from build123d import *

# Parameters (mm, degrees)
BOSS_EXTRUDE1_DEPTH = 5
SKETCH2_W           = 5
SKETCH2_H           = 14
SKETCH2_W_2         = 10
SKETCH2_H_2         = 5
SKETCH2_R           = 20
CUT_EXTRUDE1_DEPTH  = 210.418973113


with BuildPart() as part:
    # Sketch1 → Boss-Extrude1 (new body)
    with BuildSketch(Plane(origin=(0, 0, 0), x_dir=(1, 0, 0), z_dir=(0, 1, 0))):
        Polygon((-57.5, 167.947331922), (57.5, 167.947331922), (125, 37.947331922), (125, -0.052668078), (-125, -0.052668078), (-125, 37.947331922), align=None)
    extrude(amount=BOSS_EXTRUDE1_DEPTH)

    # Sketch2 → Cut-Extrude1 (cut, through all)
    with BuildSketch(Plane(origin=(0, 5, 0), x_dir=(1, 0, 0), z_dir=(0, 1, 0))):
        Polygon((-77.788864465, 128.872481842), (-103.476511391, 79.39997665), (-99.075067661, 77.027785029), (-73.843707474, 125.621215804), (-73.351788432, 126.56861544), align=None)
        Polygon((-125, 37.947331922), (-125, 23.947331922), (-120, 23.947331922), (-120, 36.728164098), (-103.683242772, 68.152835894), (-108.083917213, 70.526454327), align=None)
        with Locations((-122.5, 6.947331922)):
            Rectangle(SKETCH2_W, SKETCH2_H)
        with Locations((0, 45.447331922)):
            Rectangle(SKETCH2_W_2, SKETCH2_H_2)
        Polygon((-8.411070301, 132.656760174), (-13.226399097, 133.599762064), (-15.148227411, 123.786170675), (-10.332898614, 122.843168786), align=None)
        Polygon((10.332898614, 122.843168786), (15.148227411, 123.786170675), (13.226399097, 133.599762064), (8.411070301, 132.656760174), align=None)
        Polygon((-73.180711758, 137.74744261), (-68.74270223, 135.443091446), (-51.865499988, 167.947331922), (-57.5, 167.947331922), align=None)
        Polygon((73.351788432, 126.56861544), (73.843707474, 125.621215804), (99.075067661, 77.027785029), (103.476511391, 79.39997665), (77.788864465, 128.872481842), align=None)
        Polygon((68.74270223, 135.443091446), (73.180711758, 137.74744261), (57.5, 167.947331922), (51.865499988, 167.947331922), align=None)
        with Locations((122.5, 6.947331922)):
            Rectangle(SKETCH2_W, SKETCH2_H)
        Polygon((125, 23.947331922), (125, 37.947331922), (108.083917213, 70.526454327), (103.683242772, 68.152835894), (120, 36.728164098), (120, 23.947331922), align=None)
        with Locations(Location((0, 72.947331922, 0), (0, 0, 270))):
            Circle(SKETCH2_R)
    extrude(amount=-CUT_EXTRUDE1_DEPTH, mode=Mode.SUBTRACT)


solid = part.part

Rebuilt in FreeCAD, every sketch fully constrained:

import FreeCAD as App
import Part
import Sketcher

V = App.Vector
Q = App.Units.Quantity

doc = App.newDocument("Part")
body = doc.addObject("PartDesign::Body", "Body")

# Sketch on XZ plane
sketch1 = body.newObject("Sketcher::SketchObject", "Sketch")
sketch1.AttachmentSupport = (doc.getObject("XZ_Plane"), [""])
sketch1.MapMode = "FlatFace"
sketch1.addGeometry([
    Part.LineSegment(V(57.5, -167.947332, 0), V(-57.5, -167.947332, 0)),  # 0
    Part.LineSegment(V(-57.5, -167.947332, 0), V(-125, -37.947332, 0)),  # 1
    Part.LineSegment(V(-125, -37.947332, 0), V(-125, 0.052668, 0)),  # 2
    Part.LineSegment(V(-125, 0.052668, 0), V(125, 0.052668, 0)),  # 3
    Part.LineSegment(V(125, 0.052668, 0), V(125, -37.947332, 0)),  # 4
    Part.LineSegment(V(125, -37.947332, 0), V(57.5, -167.947332, 0)),  # 5
], False)
sketch1.addConstraint([
    Sketcher.Constraint("Coincident", 0, 2, 1, 1),
    Sketcher.Constraint("Coincident", 1, 2, 2, 1),
    Sketcher.Constraint("Coincident", 2, 2, 3, 1),
    Sketcher.Constraint("Coincident", 3, 2, 4, 1),
    Sketcher.Constraint("Coincident", 4, 2, 5, 1),
    Sketcher.Constraint("Coincident", 5, 2, 0, 1),
    Sketcher.Constraint("Horizontal", 0),
    Sketcher.Constraint("Vertical", 2),
    Sketcher.Constraint("Horizontal", 3),
    Sketcher.Constraint("Vertical", 4),
    Sketcher.Constraint("Symmetric", 1, 2, 4, 2, -2),
    Sketcher.Constraint("Equal", 1, 5),
    Sketcher.Constraint("DistanceX", 0, 2, 0, 1, Q("115 mm")),
    Sketcher.Constraint("DistanceX", 3, 1, 3, 2, Q("250 mm")),
    Sketcher.Constraint("DistanceY", 2, 1, 2, 2, Q("38 mm")),
    Sketcher.Constraint("DistanceY", 0, 2, 1, 2, Q("130 mm")),
    Sketcher.Constraint("DistanceY", 0, 2, -1, 1, Q("167.947332 mm")),
])
pad1 = body.newObject("PartDesign::Pad", "Pad")
pad1.Profile = sketch1
pad1.Length = 5
pad1.Reversed = True

# Sketch on XZ plane
sketch2 = body.newObject("Sketcher::SketchObject", "Sketch001")
sketch2.AttachmentSupport = (doc.getObject("XZ_Plane"), [""])
sketch2.MapMode = "FlatFace"
sketch2.AttachmentOffset = App.Placement(V(0, 0, -5), App.Rotation())
sketch2.addGeometry([
    Part.LineSegment(V(-77.788864, -128.872482, 0), V(-103.476511, -79.399977, 0)),  # 0
    Part.LineSegment(V(-103.476511, -79.399977, 0), V(-99.075068, -77.027785, 0)),  # 1
    Part.LineSegment(V(-99.075068, -77.027785, 0), V(-73.843707, -125.621216, 0)),  # 2
    Part.LineSegment(V(-73.843707, -125.621216, 0), V(-73.351788, -126.568615, 0)),  # 3
    Part.LineSegment(V(-73.351788, -126.568615, 0), V(-77.788864, -128.872482, 0)),  # 4
    Part.LineSegment(V(-125, -37.947332, 0), V(-125, -23.947332, 0)),  # 5
    Part.LineSegment(V(-125, -23.947332, 0), V(-120, -23.947332, 0)),  # 6
    Part.LineSegment(V(-120, -23.947332, 0), V(-120, -36.728164, 0)),  # 7
    Part.LineSegment(V(-120, -36.728164, 0), V(-103.683243, -68.152836, 0)),  # 8
    Part.LineSegment(V(-103.683243, -68.152836, 0), V(-108.083917, -70.526454, 0)),  # 9
    Part.LineSegment(V(-108.083917, -70.526454, 0), V(-125, -37.947332, 0)),  # 10
    Part.LineSegment(V(-125, -13.947332, 0), V(-125, 0.052668, 0)),  # 11
    Part.LineSegment(V(-125, 0.052668, 0), V(-120, 0.052668, 0)),  # 12
    Part.LineSegment(V(-120, 0.052668, 0), V(-120, -13.947332, 0)),  # 13
    Part.LineSegment(V(-120, -13.947332, 0), V(-125, -13.947332, 0)),  # 14
    Part.LineSegment(V(-5, -47.947332, 0), V(-5, -42.947332, 0)),  # 15
    Part.LineSegment(V(-5, -42.947332, 0), V(5, -42.947332, 0)),  # 16
    Part.LineSegment(V(5, -42.947332, 0), V(5, -47.947332, 0)),  # 17
    Part.LineSegment(V(5, -47.947332, 0), V(-5, -47.947332, 0)),  # 18
    Part.LineSegment(V(-8.41107, -132.65676, 0), V(-13.226399, -133.599762, 0)),  # 19
    Part.LineSegment(V(-13.226399, -133.599762, 0), V(-15.148227, -123.786171, 0)),  # 20
    Part.LineSegment(V(-15.148227, -123.786171, 0), V(-10.332899, -122.843169, 0)),  # 21
    Part.LineSegment(V(-10.332899, -122.843169, 0), V(-8.41107, -132.65676, 0)),  # 22
    Part.LineSegment(V(10.332899, -122.843169, 0), V(15.148227, -123.786171, 0)),  # 23
    Part.LineSegment(V(15.148227, -123.786171, 0), V(13.226399, -133.599762, 0)),  # 24
    Part.LineSegment(V(13.226399, -133.599762, 0), V(8.41107, -132.65676, 0)),  # 25
    Part.LineSegment(V(8.41107, -132.65676, 0), V(10.332899, -122.843169, 0)),  # 26
    Part.LineSegment(V(-73.180712, -137.747443, 0), V(-68.742702, -135.443091, 0)),  # 27
    Part.LineSegment(V(-68.742702, -135.443091, 0), V(-51.8655, -167.947332, 0)),  # 28
    Part.LineSegment(V(-51.8655, -167.947332, 0), V(-57.5, -167.947332, 0)),  # 29
    Part.LineSegment(V(-57.5, -167.947332, 0), V(-73.180712, -137.747443, 0)),  # 30
    Part.LineSegment(V(73.351788, -126.568615, 0), V(73.843707, -125.621216, 0)),  # 31
    Part.LineSegment(V(73.843707, -125.621216, 0), V(99.075068, -77.027785, 0)),  # 32
    Part.LineSegment(V(99.075068, -77.027785, 0), V(103.476511, -79.399977, 0)),  # 33
    Part.LineSegment(V(103.476511, -79.399977, 0), V(77.788864, -128.872482, 0)),  # 34
    Part.LineSegment(V(77.788864, -128.872482, 0), V(73.351788, -126.568615, 0)),  # 35
    Part.LineSegment(V(68.742702, -135.443091, 0), V(73.180712, -137.747443, 0)),  # 36
    Part.LineSegment(V(73.180712, -137.747443, 0), V(57.5, -167.947332, 0)),  # 37
    Part.LineSegment(V(57.5, -167.947332, 0), V(51.8655, -167.947332, 0)),  # 38
    Part.LineSegment(V(51.8655, -167.947332, 0), V(68.742702, -135.443091, 0)),  # 39
    Part.LineSegment(V(120, -13.947332, 0), V(120, 0.052668, 0)),  # 40
    Part.LineSegment(V(120, 0.052668, 0), V(125, 0.052668, 0)),  # 41
    Part.LineSegment(V(125, 0.052668, 0), V(125, -13.947332, 0)),  # 42
    Part.LineSegment(V(125, -13.947332, 0), V(120, -13.947332, 0)),  # 43
    Part.LineSegment(V(125, -23.947332, 0), V(125, -37.947332, 0)),  # 44
    Part.LineSegment(V(125, -37.947332, 0), V(108.083917, -70.526454, 0)),  # 45
    Part.LineSegment(V(108.083917, -70.526454, 0), V(103.683243, -68.152836, 0)),  # 46
    Part.LineSegment(V(103.683243, -68.152836, 0), V(120, -36.728164, 0)),  # 47
    Part.LineSegment(V(120, -36.728164, 0), V(120, -23.947332, 0)),  # 48
    Part.LineSegment(V(120, -23.947332, 0), V(125, -23.947332, 0)),  # 49
    Part.Circle(V(0, -72.947332, 0), V(0, 0, 1), 20),  # 50
], False)
sketch2.addConstraint([
    Sketcher.Constraint("Coincident", 0, 2, 1, 1),
    Sketcher.Constraint("Coincident", 1, 2, 2, 1),
    Sketcher.Constraint("Coincident", 2, 2, 3, 1),
    Sketcher.Constraint("Coincident", 3, 2, 4, 1),
    Sketcher.Constraint("Coincident", 4, 2, 0, 1),
    Sketcher.Constraint("Coincident", 5, 2, 6, 1),
    Sketcher.Constraint("Coincident", 6, 2, 7, 1),
    Sketcher.Constraint("Coincident", 7, 2, 8, 1),
    Sketcher.Constraint("Coincident", 8, 2, 9, 1),
    Sketcher.Constraint("Coincident", 9, 2, 10, 1),
    Sketcher.Constraint("Coincident", 10, 2, 5, 1),
    Sketcher.Constraint("Coincident", 11, 2, 12, 1),
    Sketcher.Constraint("Coincident", 12, 2, 13, 1),
    Sketcher.Constraint("Coincident", 13, 2, 14, 1),
    Sketcher.Constraint("Coincident", 14, 2, 11, 1),
    Sketcher.Constraint("Coincident", 15, 2, 16, 1),
    Sketcher.Constraint("Coincident", 16, 2, 17, 1),
    Sketcher.Constraint("Coincident", 17, 2, 18, 1),
    Sketcher.Constraint("Coincident", 18, 2, 15, 1),
    Sketcher.Constraint("Coincident", 19, 2, 20, 1),
    Sketcher.Constraint("Coincident", 20, 2, 21, 1),
    Sketcher.Constraint("Coincident", 21, 2, 22, 1),
    Sketcher.Constraint("Coincident", 22, 2, 19, 1),
    Sketcher.Constraint("Coincident", 23, 2, 24, 1),
    Sketcher.Constraint("Coincident", 24, 2, 25, 1),
    Sketcher.Constraint("Coincident", 25, 2, 26, 1),
    Sketcher.Constraint("Coincident", 26, 2, 23, 1),
    Sketcher.Constraint("Coincident", 27, 2, 28, 1),
    Sketcher.Constraint("Coincident", 28, 2, 29, 1),
    Sketcher.Constraint("Coincident", 29, 2, 30, 1),
    Sketcher.Constraint("Coincident", 30, 2, 27, 1),
    Sketcher.Constraint("Coincident", 31, 2, 32, 1),
    Sketcher.Constraint("Coincident", 32, 2, 33, 1),
    Sketcher.Constraint("Coincident", 33, 2, 34, 1),
    Sketcher.Constraint("Coincident", 34, 2, 35, 1),
    Sketcher.Constraint("Coincident", 35, 2, 31, 1),
    Sketcher.Constraint("Coincident", 36, 2, 37, 1),
    Sketcher.Constraint("Coincident", 37, 2, 38, 1),
    Sketcher.Constraint("Coincident", 38, 2, 39, 1),
    Sketcher.Constraint("Coincident", 39, 2, 36, 1),
    Sketcher.Constraint("Coincident", 40, 2, 41, 1),
    Sketcher.Constraint("Coincident", 41, 2, 42, 1),
    Sketcher.Constraint("Coincident", 42, 2, 43, 1),
    Sketcher.Constraint("Coincident", 43, 2, 40, 1),
    Sketcher.Constraint("Coincident", 44, 2, 45, 1),
    Sketcher.Constraint("Coincident", 45, 2, 46, 1),
    Sketcher.Constraint("Coincident", 46, 2, 47, 1),
    Sketcher.Constraint("Coincident", 47, 2, 48, 1),
    Sketcher.Constraint("Coincident", 48, 2, 49, 1),
    Sketcher.Constraint("Coincident", 49, 2, 44, 1),
    Sketcher.Constraint("Vertical", 5),
    Sketcher.Constraint("Horizontal", 6),
    Sketcher.Constraint("Vertical", 7),
    Sketcher.Constraint("Vertical", 11),
    Sketcher.Constraint("Horizontal", 12),
    Sketcher.Constraint("Vertical", 13),
    Sketcher.Constraint("Horizontal", 14),
    Sketcher.Constraint("Vertical", 15),
    Sketcher.Constraint("Horizontal", 16),
    Sketcher.Constraint("Vertical", 17),
    Sketcher.Constraint("Horizontal", 18),
    Sketcher.Constraint("Horizontal", 29),
    Sketcher.Constraint("Horizontal", 38),
    Sketcher.Constraint("Vertical", 40),
    Sketcher.Constraint("Horizontal", 41),
    Sketcher.Constraint("Vertical", 42),
    Sketcher.Constraint("Horizontal", 43),
    Sketcher.Constraint("Vertical", 44),
    Sketcher.Constraint("Vertical", 48),
    Sketcher.Constraint("Horizontal", 49),
    Sketcher.Constraint("PointOnObject", 50, 3, -2),
    Sketcher.Constraint("Diameter", 50, Q("40 mm")),
    Sketcher.Constraint("DistanceX", 6, 1, 6, 2, Q("5 mm")),
    Sketcher.Constraint("DistanceX", 12, 1, 12, 2, Q("5 mm")),
    Sketcher.Constraint("DistanceX", 16, 1, 16, 2, Q("10 mm")),
    Sketcher.Constraint("DistanceX", 41, 1, 41, 2, Q("5 mm")),
    Sketcher.Constraint("DistanceX", 49, 1, 49, 2, Q("5 mm")),
    Sketcher.Constraint("DistanceY", 5, 1, 5, 2, Q("14 mm")),
    Sketcher.Constraint("DistanceY", 11, 1, 11, 2, Q("14 mm")),
    Sketcher.Constraint("DistanceY", 15, 1, 15, 2, Q("5 mm")),
    Sketcher.Constraint("DistanceY", 40, 1, 40, 2, Q("14 mm")),
    Sketcher.Constraint("DistanceY", 44, 2, 44, 1, Q("14 mm")),
    Sketcher.Constraint("Distance", 1, Q("5 mm")),
    Sketcher.Constraint("Distance", 9, Q("5 mm")),
    Sketcher.Constraint("Distance", 20, Q("10 mm")),
    Sketcher.Constraint("Distance", 22, Q("10 mm")),
    Sketcher.Constraint("Distance", 24, Q("10 mm")),
    Sketcher.Constraint("Distance", 26, Q("10 mm")),
    Sketcher.Constraint("Distance", 33, Q("5 mm")),
    Sketcher.Constraint("Distance", 46, Q("5 mm")),
    Sketcher.Constraint("DistanceX", 5, 2, -1, 1, Q("125 mm")),
    Sketcher.Constraint("DistanceX", 11, 2, -1, 1, Q("125 mm")),
    Sketcher.Constraint("DistanceX", 15, 2, -1, 1, Q("5 mm")),
    Sketcher.Constraint("DistanceX", -1, 1, 40, 2, Q("120 mm")),
    Sketcher.Constraint("DistanceX", -1, 1, 44, 2, Q("125 mm")),
    Sketcher.Constraint("DistanceY", 5, 2, 11, 2, Q("24 mm")),
    Sketcher.Constraint("DistanceY", 50, 3, 15, 2, Q("30 mm")),
    Sketcher.Constraint("DistanceY", 16, 2, 40, 2, Q("43 mm")),
    Sketcher.Constraint("DistanceY", 44, 2, 42, 2, Q("24 mm")),
    Sketcher.Constraint("DistanceX", 29, 2, -1, 1, Q("57.5 mm")),
    Sketcher.Constraint("DistanceX", -1, 1, 37, 2, Q("57.5 mm")),
    Sketcher.Constraint("DistanceX", 29, 2, 29, 1, Q("5.6345 mm")),
    Sketcher.Constraint("DistanceX", 38, 2, 38, 1, Q("5.6345 mm")),
    Sketcher.Constraint("DistanceY", 20, 2, 21, 2, Q("0.943002 mm")),
    Sketcher.Constraint("DistanceY", 19, 2, 22, 2, Q("0.943002 mm")),
    Sketcher.Constraint("DistanceY", 23, 2, 21, 2, Q("0.943002 mm")),
    Sketcher.Constraint("DistanceY", 24, 2, 22, 2, Q("0.943002 mm")),
    Sketcher.Constraint("DistanceY", 24, 2, 25, 2, Q("0.943002 mm")),
    Sketcher.Constraint("DistanceY", 23, 2, 26, 2, Q("0.943002 mm")),
    Sketcher.Constraint("DistanceX", 19, 2, -1, 1, Q("13.226399 mm")),
    Sketcher.Constraint("DistanceX", 21, 2, -1, 1, Q("10.332899 mm")),
    Sketcher.Constraint("DistanceX", -1, 1, 24, 2, Q("13.226399 mm")),
    Sketcher.Constraint("DistanceX", -1, 1, 26, 2, Q("10.332899 mm")),
    Sketcher.Constraint("DistanceY", 3, 2, 2, 2, Q("0.9474 mm")),
    Sketcher.Constraint("DistanceY", 35, 2, 31, 2, Q("0.9474 mm")),
    Sketcher.Constraint("Distance", 28, Q("36.624658 mm")),
    Sketcher.Constraint("Distance", 39, Q("36.624658 mm")),
    Sketcher.Constraint("DistanceY", 7, 2, 7, 1, Q("12.780832 mm")),
    Sketcher.Constraint("DistanceY", 48, 1, 48, 2, Q("12.780832 mm")),
    Sketcher.Constraint("DistanceY", 50, 3, -1, 1, Q("72.947332 mm")),
    Sketcher.Constraint("DistanceX", 0, 2, -1, 1, Q("103.476511 mm")),
    Sketcher.Constraint("DistanceX", 3, 2, -1, 1, Q("73.351788 mm")),
    Sketcher.Constraint("DistanceY", 4, 2, -1, 1, Q("128.872482 mm")),
    Sketcher.Constraint("DistanceY", 5, 2, -1, 1, Q("23.947332 mm")),
    Sketcher.Constraint("DistanceY", 20, 2, -1, 1, Q("123.786171 mm")),
    Sketcher.Constraint("DistanceX", 22, 2, -1, 1, Q("8.41107 mm")),
    Sketcher.Constraint("DistanceY", 27, 2, -1, 1, Q("135.443091 mm")),
    Sketcher.Constraint("DistanceY", 28, 2, -1, 1, Q("167.947332 mm")),
    Sketcher.Constraint("DistanceX", 30, 2, -1, 1, Q("73.180712 mm")),
    Sketcher.Constraint("DistanceX", -1, 1, 33, 2, Q("103.476511 mm")),
    Sketcher.Constraint("DistanceY", 34, 2, -1, 1, Q("128.872482 mm")),
    Sketcher.Constraint("DistanceX", -1, 1, 35, 2, Q("73.351788 mm")),
    Sketcher.Constraint("DistanceX", -1, 1, 36, 2, Q("73.180712 mm")),
    Sketcher.Constraint("DistanceY", 37, 2, -1, 1, Q("167.947332 mm")),
    Sketcher.Constraint("DistanceY", 39, 2, -1, 1, Q("135.443091 mm")),
    Sketcher.Constraint("DistanceY", 0, 2, 1, 2, Q("2.372192 mm")),
    Sketcher.Constraint("DistanceX", 1, 2, 2, 2, Q("25.23136 mm")),
    Sketcher.Constraint("DistanceY", 2, 2, 1, 2, Q("48.593431 mm")),
    Sketcher.Constraint("DistanceY", 1, 2, 7, 2, Q("40.299621 mm")),
    Sketcher.Constraint("DistanceY", 1, 2, 8, 2, Q("8.874949 mm")),
    Sketcher.Constraint("DistanceX", 8, 2, 0, 2, Q("0.206731 mm")),
    Sketcher.Constraint("DistanceY", 9, 2, 8, 2, Q("2.373618 mm")),
    Sketcher.Constraint("DistanceY", 30, 2, 27, 2, Q("2.304351 mm")),
    Sketcher.Constraint("DistanceX", 23, 2, 31, 2, Q("58.69548 mm")),
    Sketcher.Constraint("DistanceX", 31, 2, 32, 2, Q("25.23136 mm")),
    Sketcher.Constraint("DistanceY", 31, 2, 32, 2, Q("48.593431 mm")),
    Sketcher.Constraint("DistanceY", 36, 2, 34, 2, Q("8.874961 mm")),
    Sketcher.Constraint("DistanceX", 32, 2, 45, 2, Q("9.00885 mm")),
    Sketcher.Constraint("DistanceY", 32, 2, 45, 2, Q("6.501331 mm")),
    Sketcher.Constraint("DistanceY", 45, 2, 46, 2, Q("2.373618 mm")),
    Sketcher.Constraint("DistanceY", 46, 2, 47, 2, Q("31.424672 mm")),
    Sketcher.Constraint("Distance", 0, Q("55.743914 mm")),
    Sketcher.Constraint("Distance", 34, Q("55.743914 mm")),
])
pocket1 = body.newObject("PartDesign::Pocket", "Pocket")
pocket1.Profile = sketch2
pocket1.Type = "ThroughAll"
pocket1.Reversed = True

doc.recompute()
